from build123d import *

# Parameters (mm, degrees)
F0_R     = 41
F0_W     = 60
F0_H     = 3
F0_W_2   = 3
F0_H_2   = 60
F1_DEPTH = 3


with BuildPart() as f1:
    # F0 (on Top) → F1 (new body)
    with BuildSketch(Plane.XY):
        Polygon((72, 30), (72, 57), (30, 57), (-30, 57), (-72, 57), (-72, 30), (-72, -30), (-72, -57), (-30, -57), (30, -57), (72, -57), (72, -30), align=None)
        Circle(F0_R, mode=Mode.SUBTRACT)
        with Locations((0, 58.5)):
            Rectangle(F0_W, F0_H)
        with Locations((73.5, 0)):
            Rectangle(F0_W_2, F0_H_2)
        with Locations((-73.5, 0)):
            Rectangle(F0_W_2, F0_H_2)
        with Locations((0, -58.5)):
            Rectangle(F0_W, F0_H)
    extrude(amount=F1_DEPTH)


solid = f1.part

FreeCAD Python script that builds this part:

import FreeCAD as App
import Part
import Sketcher
from FreeCAD import Vector
Q = App.Units.Quantity


def add_polygon(sketch, points):
    """Adds a closed chain of lines whose ends are joined by coincident constraints."""
    first, n = sketch.GeometryCount, len(points)
    for a, b in zip(points, points[1:] + points[:1]):
        sketch.addGeometry(Part.LineSegment(App.Vector(*a, 0), App.Vector(*b, 0)), False)
    for i in range(n):
        sketch.addConstraint(Sketcher.Constraint("Coincident", first + i, 2, first + (i + 1) % n, 1))

doc = App.newDocument("Part")
params = doc.addObject("Spreadsheet::Sheet", "Params")
for row, (alias, value) in enumerate([
    ("sketch1_diameter", "82 mm"),
    ("sketch1_width", "42 mm"),
    ("sketch1_width2", "60 mm"),
    ("sketch1_width3", "3 mm"),
    ("sketch1_height", "27 mm"),
    ("pad1_length", "3 mm"),
], start=1):
    params.set(f"A{row}", alias)
    params.set(f"B{row}", "=" + value)
    params.setAlias(f"B{row}", alias)

body = doc.addObject("PartDesign::Body", "Body")

# Sketch on XY plane
sketch1 = body.newObject("Sketcher::SketchObject", "Sketch")
sketch1.AttachmentSupport = (doc.getObject("XY_Plane"), [""])
sketch1.MapMode = "FlatFace"
add_polygon(sketch1, [(72, 57), (30, 57), (30, 60), (-30, 60), (-30, 57), (-72, 57), (-72, 30), (-75, 30), (-75, -30), (-72, -30), (-72, -57), (-30, -57), (-30, -60), (30, -60), (30, -57), (72, -57), (72, -30), (75, -30), (75, 30), (72, 30)])  # lines 0-19
sketch1.addGeometry(Part.Circle(Vector(0, 0, 0), Vector(0, 0, 1), 41), False)  # 20
sketch1.addConstraint(Sketcher.Constraint("Horizontal", 0))
sketch1.addConstraint(Sketcher.Constraint("Vertical", 1))
sketch1.addConstraint(Sketcher.Constraint("Horizontal", 2))
sketch1.addConstraint(Sketcher.Constraint("Vertical", 3))
sketch1.addConstraint(Sketcher.Constraint("Horizontal", 4))
sketch1.addConstraint(Sketcher.Constraint("Vertical", 5))
sketch1.addConstraint(Sketcher.Constraint("Horizontal", 6))
sketch1.addConstraint(Sketcher.Constraint("Vertical", 7))
sketch1.addConstraint(Sketcher.Constraint("Horizontal", 8))
sketch1.addConstraint(Sketcher.Constraint("Vertical", 9))
sketch1.addConstraint(Sketcher.Constraint("Horizontal", 10))
sketch1.addConstraint(Sketcher.Constraint("Vertical", 11))
sketch1.addConstraint(Sketcher.Constraint("Horizontal", 12))
sketch1.addConstraint(Sketcher.Constraint("Vertical", 13))
sketch1.addConstraint(Sketcher.Constraint("Horizontal", 14))
sketch1.addConstraint(Sketcher.Constraint("Vertical", 15))
sketch1.addConstraint(Sketcher.Constraint("Horizontal", 16))
sketch1.addConstraint(Sketcher.Constraint("Vertical", 17))
sketch1.addConstraint(Sketcher.Constraint("Horizontal", 18))
sketch1.addConstraint(Sketcher.Constraint("Vertical", 19))
sketch1.addConstraint(Sketcher.Constraint("Coincident", 20, 3, -1, 1))
sketch1.addConstraint(Sketcher.Constraint("Symmetric", 0, 2, 10, 2, -1, 1))
sketch1.addConstraint(Sketcher.Constraint("Symmetric", 2, 2, 12, 2, -1, 1))
sketch1.addConstraint(Sketcher.Constraint("Symmetric", 4, 2, 14, 2, -1, 1))
sketch1.addConstraint(Sketcher.Constraint("Symmetric", 6, 2, 16, 2, -1, 1))
sketch1.addConstraint(Sketcher.Constraint("Symmetric", 8, 2, 18, 2, -1, 1))
sketch1.addConstraint(Sketcher.Constraint("Symmetric", 0, 2, 3, 2, -2))
sketch1.addConstraint(Sketcher.Constraint("Symmetric", 8, 2, 15, 2, -2))
sketch1.addConstraint(Sketcher.Constraint("Equal", 18, 1))
sketch1.addConstraint(Sketcher.Constraint("Equal", 12, 7))
sketch1.addConstraint(Sketcher.Constraint("Diameter", 20, Q("82 mm")))
sketch1.addConstraint(Sketcher.Constraint("DistanceX", 0, 2, 0, 1, Q("42 mm")))
sketch1.addConstraint(Sketcher.Constraint("DistanceX", 2, 2, 2, 1, Q("60 mm")))
sketch1.addConstraint(Sketcher.Constraint("DistanceX", 6, 2, 6, 1, Q("3 mm")))
sketch1.addConstraint(Sketcher.Constraint("DistanceY", 5, 2, 5, 1, Q("27 mm")))
sketch1.setExpression("Constraints[50]", "Params.sketch1_diameter")
sketch1.setExpression("Constraints[51]", "Params.sketch1_width")
sketch1.setExpression("Constraints[52]", "Params.sketch1_width2")
sketch1.setExpression("Constraints[53]", "Params.sketch1_width3")
sketch1.setExpression("Constraints[54]", "Params.sketch1_height")
pad1 = body.newObject("PartDesign::Pad", "Pad")
pad1.Profile = sketch1
pad1.setExpression("Length", "Params.pad1_length")

doc.recompute()
